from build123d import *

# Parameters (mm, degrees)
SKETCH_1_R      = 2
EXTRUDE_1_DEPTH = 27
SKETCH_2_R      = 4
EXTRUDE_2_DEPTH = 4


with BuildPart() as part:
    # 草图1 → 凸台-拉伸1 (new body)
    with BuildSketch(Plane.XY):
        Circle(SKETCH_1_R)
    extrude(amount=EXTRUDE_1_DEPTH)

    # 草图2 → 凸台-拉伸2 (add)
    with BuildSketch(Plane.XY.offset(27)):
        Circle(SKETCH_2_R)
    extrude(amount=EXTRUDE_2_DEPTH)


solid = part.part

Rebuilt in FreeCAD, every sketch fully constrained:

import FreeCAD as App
import Part
import Sketcher
from FreeCAD import Vector
Q = App.Units.Quantity

doc = App.newDocument("Part")
params = doc.addObject("Spreadsheet::Sheet", "Params")
for row, (alias, value) in enumerate([
    ("sketch1_diameter", "4 mm"),
    ("pad1_length", "27 mm"),
    ("sketch2_diameter", "8 mm"),
    ("pad2_length", "4 mm"),
], start=1):
    params.set(f"A{row}", alias)
    params.set(f"B{row}", "=" + value)
    params.setAlias(f"B{row}", alias)

body = doc.addObject("PartDesign::Body", "Body")

# Sketch on XY plane
sketch1 = doc.addObject("Sketcher::SketchObject", "Sketch")
body.addObject(sketch1)
sketch1.AttachmentSupport = (doc.XY_Plane, [""])
sketch1.MapMode = "FlatFace"
sketch1.addGeometry(Part.Circle(Vector(0, 0, 0), Vector(0, 0, 1), 2), False)
sketch1.addConstraint([
    Sketcher.Constraint("Coincident", 0, 3, -1, 1),
    Sketcher.Constraint("Diameter", 0, Q("4 mm")),
])
sketch1.setExpression("Constraints[1]", "Params.sketch1_diameter")
pad1 = doc.addObject("PartDesign::Pad", "Pad")
body.addObject(pad1)
pad1.Profile = sketch1
pad1.setExpression("Length", "Params.pad1_length")

# Sketch on XY plane
sketch2 = doc.addObject("Sketcher::SketchObject", "Sketch001")
body.addObject(sketch2)
sketch2.AttachmentSupport = (doc.XY_Plane, [""])
sketch2.MapMode = "FlatFace"
sketch2.AttachmentOffset = App.Placement(Vector(0, 0, 27), App.Rotation())
sketch2.addGeometry(Part.Circle(Vector(0, 0, 0), Vector(0, 0, 1), 4), False)
sketch2.addConstraint([
    Sketcher.Constraint("Coincident", 0, 3, -1, 1),
    Sketcher.Constraint("Diameter", 0, Q("8 mm")),
])
sketch2.setExpression("Constraints[1]", "Params.sketch2_diameter")
pad2 = doc.addObject("PartDesign::Pad", "Pad001")
body.addObject(pad2)
pad2.Profile = sketch2
pad2.setExpression("Length", "Params.pad2_length")

doc.recompute()
